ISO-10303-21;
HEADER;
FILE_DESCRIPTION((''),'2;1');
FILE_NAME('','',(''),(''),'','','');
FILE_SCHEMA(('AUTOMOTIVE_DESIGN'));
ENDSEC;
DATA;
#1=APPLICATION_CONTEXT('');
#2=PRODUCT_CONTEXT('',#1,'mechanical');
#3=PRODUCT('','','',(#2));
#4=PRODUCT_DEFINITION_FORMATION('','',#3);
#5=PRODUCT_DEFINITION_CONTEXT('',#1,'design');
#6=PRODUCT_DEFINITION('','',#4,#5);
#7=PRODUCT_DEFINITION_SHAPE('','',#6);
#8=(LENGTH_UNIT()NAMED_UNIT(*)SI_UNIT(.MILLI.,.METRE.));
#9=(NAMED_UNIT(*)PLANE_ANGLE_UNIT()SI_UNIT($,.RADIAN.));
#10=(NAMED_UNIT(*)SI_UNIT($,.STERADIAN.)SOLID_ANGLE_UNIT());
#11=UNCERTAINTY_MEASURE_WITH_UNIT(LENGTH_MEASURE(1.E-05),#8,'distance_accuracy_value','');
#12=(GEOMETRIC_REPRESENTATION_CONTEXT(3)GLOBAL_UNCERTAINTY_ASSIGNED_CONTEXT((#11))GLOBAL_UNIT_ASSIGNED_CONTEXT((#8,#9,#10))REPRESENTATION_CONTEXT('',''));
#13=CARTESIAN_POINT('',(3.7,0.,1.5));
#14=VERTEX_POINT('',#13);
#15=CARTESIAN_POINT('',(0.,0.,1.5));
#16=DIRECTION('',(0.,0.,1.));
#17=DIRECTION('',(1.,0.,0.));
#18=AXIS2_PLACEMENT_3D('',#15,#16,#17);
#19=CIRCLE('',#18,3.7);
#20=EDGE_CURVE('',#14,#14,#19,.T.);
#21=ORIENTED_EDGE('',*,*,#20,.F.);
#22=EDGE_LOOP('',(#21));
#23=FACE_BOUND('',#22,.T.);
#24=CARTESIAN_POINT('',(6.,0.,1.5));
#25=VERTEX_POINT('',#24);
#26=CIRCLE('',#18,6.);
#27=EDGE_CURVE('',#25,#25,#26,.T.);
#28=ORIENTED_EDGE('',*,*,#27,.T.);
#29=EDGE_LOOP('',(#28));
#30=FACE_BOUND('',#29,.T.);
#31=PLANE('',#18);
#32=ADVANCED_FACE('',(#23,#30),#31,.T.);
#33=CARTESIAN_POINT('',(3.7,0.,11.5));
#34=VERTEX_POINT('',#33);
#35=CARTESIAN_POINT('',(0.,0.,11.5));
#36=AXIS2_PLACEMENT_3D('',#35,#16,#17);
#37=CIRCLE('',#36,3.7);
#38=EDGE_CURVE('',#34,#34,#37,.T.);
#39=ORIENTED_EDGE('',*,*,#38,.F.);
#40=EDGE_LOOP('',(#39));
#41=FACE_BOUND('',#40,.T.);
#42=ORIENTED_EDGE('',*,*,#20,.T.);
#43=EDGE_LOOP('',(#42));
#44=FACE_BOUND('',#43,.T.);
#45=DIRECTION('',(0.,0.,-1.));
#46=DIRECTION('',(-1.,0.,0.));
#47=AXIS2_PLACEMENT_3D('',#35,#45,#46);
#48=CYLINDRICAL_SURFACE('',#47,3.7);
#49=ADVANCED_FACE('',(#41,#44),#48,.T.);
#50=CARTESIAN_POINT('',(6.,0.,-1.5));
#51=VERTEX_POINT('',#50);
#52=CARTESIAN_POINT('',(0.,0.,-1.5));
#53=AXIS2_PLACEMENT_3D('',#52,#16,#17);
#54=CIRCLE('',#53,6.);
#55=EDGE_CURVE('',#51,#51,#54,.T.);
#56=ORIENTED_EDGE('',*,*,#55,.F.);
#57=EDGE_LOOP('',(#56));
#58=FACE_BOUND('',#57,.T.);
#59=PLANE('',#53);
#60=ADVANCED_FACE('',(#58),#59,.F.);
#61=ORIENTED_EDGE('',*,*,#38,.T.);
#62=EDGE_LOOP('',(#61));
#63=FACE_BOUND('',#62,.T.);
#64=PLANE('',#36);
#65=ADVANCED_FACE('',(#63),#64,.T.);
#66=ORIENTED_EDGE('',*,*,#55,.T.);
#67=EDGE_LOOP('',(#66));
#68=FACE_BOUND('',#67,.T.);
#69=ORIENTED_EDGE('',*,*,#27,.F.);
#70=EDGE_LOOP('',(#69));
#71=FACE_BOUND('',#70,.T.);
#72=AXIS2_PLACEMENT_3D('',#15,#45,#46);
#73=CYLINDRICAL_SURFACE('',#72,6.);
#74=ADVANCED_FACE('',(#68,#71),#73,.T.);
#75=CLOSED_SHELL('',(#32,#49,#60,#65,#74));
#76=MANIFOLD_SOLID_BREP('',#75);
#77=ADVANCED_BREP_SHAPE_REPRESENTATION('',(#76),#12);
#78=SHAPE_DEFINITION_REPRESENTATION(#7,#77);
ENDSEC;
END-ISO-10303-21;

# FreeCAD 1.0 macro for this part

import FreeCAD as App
import Part
import Sketcher

V = App.Vector
Q = App.Units.Quantity

doc = App.newDocument("Part")
body = doc.addObject("PartDesign::Body", "Body")

sketch1 = doc.addObject("Sketcher::SketchObject", "Sketch")
body.addObject(sketch1)
sketch1.AttachmentSupport = (doc.XY_Plane, [""])
sketch1.MapMode = "FlatFace"
sketch1.addGeometry(Part.Circle(V(0, 0, 0), V(0, 0, 1), 6), False)
sketch1.addConstraint(Sketcher.Constraint("Coincident", 0, 3, -1, 1))
sketch1.addConstraint(Sketcher.Constraint("Diameter", 0, Q("12 mm")))
pad1 = doc.addObject("PartDesign::Pad", "Pad")
body.addObject(pad1)
pad1.Profile = sketch1
pad1.Length = 3
pad1.Midplane = True

sketch2 = doc.addObject("Sketcher::SketchObject", "Sketch001")
body.addObject(sketch2)
sketch2.AttachmentSupport = (doc.XY_Plane, [""])
sketch2.MapMode = "FlatFace"
sketch2.AttachmentOffset = App.Placement(V(0, 0, 1.5), App.Rotation())
sketch2.addGeometry(Part.Circle(V(0, 0, 0), V(0, 0, 1), 3.7), False)
sketch2.addConstraint(Sketcher.Constraint("Coincident", 0, 3, -1, 1))
sketch2.addConstraint(Sketcher.Constraint("Diameter", 0, Q("7.4 mm")))
pad2 = doc.addObject("PartDesign::Pad", "Pad001")
body.addObject(pad2)
pad2.Profile = sketch2
pad2.Length = 10

doc.recompute()
